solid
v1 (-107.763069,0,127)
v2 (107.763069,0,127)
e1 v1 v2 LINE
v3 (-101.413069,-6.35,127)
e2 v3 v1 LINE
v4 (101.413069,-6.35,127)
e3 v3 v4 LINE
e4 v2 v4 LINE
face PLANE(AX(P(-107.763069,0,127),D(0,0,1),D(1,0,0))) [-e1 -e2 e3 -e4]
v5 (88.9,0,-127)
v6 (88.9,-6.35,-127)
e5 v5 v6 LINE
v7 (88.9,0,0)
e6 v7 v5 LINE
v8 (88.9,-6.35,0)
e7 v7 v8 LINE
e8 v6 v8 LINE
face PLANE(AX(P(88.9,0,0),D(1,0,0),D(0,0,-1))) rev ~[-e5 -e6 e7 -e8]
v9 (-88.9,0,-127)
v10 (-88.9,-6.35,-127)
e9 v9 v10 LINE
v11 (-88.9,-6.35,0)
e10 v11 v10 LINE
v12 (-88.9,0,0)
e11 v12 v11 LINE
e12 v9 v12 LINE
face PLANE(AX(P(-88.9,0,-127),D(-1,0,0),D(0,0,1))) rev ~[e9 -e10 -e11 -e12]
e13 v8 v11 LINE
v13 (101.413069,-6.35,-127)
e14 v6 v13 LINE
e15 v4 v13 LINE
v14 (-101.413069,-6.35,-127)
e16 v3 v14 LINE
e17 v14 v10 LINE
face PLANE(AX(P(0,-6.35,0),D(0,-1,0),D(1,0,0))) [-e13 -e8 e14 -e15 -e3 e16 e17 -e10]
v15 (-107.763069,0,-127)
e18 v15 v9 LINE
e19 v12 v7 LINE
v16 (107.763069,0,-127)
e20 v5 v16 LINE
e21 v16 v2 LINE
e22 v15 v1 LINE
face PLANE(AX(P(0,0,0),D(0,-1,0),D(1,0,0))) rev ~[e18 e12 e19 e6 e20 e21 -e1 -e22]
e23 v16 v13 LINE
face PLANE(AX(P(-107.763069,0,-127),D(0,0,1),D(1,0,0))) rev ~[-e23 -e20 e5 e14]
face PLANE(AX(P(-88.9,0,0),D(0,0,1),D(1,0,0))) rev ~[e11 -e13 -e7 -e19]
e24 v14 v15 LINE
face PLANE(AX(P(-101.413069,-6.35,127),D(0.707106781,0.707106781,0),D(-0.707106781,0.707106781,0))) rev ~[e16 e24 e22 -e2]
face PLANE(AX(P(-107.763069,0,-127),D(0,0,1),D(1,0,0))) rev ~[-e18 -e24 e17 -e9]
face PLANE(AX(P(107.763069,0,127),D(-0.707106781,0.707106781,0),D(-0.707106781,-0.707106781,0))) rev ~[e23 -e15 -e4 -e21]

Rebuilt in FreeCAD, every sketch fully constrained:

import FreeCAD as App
import Part
import Sketcher
from FreeCAD import Vector
Q = App.Units.Quantity


def add_polygon(sketch, points):
    """Adds a closed chain of lines whose ends are joined by coincident constraints."""
    first, n = sketch.GeometryCount, len(points)
    for a, b in zip(points, points[1:] + points[:1]):
        sketch.addGeometry(Part.LineSegment(App.Vector(*a, 0), App.Vector(*b, 0)), False)
    for i in range(n):
        sketch.addConstraint(Sketcher.Constraint("Coincident", first + i, 2, first + (i + 1) % n, 1))

doc = App.newDocument("Part")
body = doc.addObject("PartDesign::Body", "Body")

# Sketch on XZ plane
sketch1 = body.newObject("Sketcher::SketchObject", "Sketch")
sketch1.AttachmentSupport = (doc.getObject("XZ_Plane"), [""])
sketch1.MapMode = "FlatFace"
add_polygon(sketch1, [(-107.763069, 127), (-107.763069, -127), (107.763069, -127), (107.763069, 127)])  # lines 0-3
sketch1.addConstraint([
    Sketcher.Constraint("Vertical", 0),
    Sketcher.Constraint("Horizontal", 1),
    Sketcher.Constraint("Vertical", 2),
    Sketcher.Constraint("Horizontal", 3),
    Sketcher.Constraint("Symmetric", 0, 2, 2, 2, -1, 1),
    Sketcher.Constraint("DistanceY", 0, 2, 0, 1, Q("10 in")),
    Sketcher.Constraint("DistanceX", 1, 1, 1, 2, Q("215.526138 mm")),
])
pad1 = body.newObject("PartDesign::Pad", "Pad")
pad1.Profile = sketch1
pad1.Length = Q("0.25 in")

# Sketch on XY plane
sketch2 = body.newObject("Sketcher::SketchObject", "Sketch001")
sketch2.AttachmentSupport = (doc.getObject("XY_Plane"), [""])
sketch2.MapMode = "FlatFace"
sketch2.AttachmentOffset = App.Placement(Vector(0, 0, 5 * 25.4), App.Rotation())
add_polygon(sketch2, [(-107.763069, 0), (-107.763069, -6.35), (-101.413069, -6.35)])  # lines 0-2
add_polygon(sketch2, [(107.763069, 0), (101.413069, -6.35), (107.763069, -6.35)])  # lines 3-5
sketch2.addConstraint([
    Sketcher.Constraint("Vertical", 0),
    Sketcher.Constraint("Horizontal", 1),
    Sketcher.Constraint("Horizontal", 4),
    Sketcher.Constraint("Vertical", 5),
    Sketcher.Constraint("Symmetric", 2, 2, 5, 2, -1, 1),
    Sketcher.Constraint("Symmetric", 1, 2, 3, 2, -2),
    Sketcher.Constraint("PointOnObject", 2, 2, -1),
    Sketcher.Constraint("Perpendicular", 2, 3),
    Sketcher.Constraint("DistanceX", 1, 1, 1, 2, Q("0.25 in")),
    Sketcher.Constraint("DistanceX", 0, 2, -1, 1, Q("107.763069 mm")),
])
pocket1 = body.newObject("PartDesign::Pocket", "Pocket")
pocket1.Profile = sketch2
pocket1.Type = "ThroughAll"

# Sketch on XZ plane
sketch3 = body.newObject("Sketcher::SketchObject", "Sketch002")
sketch3.AttachmentSupport = (doc.getObject("XZ_Plane"), [""])
sketch3.MapMode = "FlatFace"
add_polygon(sketch3, [(-88.9, 0), (88.9, 0), (88.9, -127), (-88.9, -127)])  # lines 0-3
sketch3.addConstraint([
    Sketcher.Constraint("Horizontal", 0),
    Sketcher.Constraint("Vertical", 1),
    Sketcher.Constraint("Horizontal", 2),
    Sketcher.Constraint("Vertical", 3),
    Sketcher.Constraint("Symmetric", 0, 2, 3, 2, -1, 1),
    Sketcher.Constraint("DistanceX", 0, 1, 0, 2, Q("7 in")),
    Sketcher.Constraint("DistanceY", 1, 2, 1, 1, Q("5 in")),
])
pocket2 = body.newObject("PartDesign::Pocket", "Pocket001")
pocket2.Profile = sketch3
pocket2.Length = Q("1 in")
pocket2.Reversed = True

doc.recompute()
